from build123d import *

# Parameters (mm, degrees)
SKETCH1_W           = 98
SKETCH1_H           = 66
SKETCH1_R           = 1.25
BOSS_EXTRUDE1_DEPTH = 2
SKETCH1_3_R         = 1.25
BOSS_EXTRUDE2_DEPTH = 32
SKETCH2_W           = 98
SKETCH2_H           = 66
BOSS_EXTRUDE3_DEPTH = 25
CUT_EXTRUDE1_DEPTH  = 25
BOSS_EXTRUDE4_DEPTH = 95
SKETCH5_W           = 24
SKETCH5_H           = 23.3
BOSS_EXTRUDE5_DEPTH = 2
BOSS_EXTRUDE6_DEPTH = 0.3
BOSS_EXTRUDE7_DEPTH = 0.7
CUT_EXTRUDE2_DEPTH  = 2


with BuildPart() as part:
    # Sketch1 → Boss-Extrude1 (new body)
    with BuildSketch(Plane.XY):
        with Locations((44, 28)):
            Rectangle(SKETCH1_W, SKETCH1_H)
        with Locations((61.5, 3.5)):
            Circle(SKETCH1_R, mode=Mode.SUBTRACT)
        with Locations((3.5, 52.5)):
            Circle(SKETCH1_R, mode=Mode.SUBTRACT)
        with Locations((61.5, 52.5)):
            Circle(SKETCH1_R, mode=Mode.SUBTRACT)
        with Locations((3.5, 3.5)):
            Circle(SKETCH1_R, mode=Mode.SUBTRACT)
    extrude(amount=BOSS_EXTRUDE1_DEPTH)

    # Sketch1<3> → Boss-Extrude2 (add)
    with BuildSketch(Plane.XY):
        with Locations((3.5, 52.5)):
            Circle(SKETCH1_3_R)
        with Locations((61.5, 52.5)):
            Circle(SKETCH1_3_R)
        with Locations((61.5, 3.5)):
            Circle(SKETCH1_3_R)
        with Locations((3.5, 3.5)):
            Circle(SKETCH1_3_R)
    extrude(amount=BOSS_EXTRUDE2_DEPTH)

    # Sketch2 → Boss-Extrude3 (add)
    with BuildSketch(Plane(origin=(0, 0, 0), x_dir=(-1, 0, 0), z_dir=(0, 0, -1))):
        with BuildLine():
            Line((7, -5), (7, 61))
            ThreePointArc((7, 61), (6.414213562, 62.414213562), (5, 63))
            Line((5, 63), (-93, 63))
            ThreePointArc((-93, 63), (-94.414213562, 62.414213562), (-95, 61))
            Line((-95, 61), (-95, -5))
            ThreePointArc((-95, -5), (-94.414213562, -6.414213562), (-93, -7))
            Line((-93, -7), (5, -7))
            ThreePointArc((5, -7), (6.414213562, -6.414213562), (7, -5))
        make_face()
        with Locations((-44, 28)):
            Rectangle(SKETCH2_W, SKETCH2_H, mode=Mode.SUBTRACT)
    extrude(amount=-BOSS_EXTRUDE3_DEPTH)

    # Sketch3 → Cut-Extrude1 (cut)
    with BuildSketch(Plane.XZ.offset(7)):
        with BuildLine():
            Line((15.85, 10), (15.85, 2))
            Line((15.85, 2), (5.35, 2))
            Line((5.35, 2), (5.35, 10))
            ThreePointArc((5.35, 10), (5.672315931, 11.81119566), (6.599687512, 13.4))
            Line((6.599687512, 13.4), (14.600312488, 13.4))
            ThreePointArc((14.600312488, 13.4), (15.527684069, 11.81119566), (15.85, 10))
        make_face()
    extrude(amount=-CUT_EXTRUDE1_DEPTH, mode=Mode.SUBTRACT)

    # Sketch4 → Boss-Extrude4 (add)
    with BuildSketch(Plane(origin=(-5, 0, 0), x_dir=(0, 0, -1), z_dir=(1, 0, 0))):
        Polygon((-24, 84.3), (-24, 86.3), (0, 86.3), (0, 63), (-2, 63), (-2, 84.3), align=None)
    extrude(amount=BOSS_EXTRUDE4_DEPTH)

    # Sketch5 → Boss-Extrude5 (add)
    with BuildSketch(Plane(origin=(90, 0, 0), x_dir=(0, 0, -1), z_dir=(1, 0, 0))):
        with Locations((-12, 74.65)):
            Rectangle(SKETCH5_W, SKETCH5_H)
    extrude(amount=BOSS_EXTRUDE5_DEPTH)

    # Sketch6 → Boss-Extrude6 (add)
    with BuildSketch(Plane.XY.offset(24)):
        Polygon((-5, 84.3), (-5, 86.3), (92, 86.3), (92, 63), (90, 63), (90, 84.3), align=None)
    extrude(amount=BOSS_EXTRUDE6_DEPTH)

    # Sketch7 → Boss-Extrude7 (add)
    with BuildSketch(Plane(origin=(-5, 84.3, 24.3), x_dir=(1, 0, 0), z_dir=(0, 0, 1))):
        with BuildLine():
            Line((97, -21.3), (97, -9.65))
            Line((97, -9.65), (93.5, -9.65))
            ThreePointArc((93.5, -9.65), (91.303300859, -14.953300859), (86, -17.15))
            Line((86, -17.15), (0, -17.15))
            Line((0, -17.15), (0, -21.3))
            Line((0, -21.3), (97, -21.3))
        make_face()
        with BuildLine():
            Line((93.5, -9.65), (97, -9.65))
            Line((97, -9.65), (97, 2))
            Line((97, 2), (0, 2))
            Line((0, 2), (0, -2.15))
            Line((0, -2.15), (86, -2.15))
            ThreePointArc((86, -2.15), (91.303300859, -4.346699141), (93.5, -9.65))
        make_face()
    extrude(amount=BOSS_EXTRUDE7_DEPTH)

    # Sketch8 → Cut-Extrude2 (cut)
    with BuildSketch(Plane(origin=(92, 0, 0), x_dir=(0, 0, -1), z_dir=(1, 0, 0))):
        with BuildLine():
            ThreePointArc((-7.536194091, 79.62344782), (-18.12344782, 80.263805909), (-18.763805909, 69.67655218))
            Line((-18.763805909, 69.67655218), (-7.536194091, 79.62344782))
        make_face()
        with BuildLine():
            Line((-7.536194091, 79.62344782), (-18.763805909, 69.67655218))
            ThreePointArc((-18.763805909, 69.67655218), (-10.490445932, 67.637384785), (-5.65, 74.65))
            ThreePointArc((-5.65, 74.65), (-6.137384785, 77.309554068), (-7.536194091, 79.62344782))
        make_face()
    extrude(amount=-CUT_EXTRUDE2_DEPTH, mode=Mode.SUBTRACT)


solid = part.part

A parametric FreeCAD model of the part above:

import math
import FreeCAD as App
import Part
import Sketcher
Q = App.Units.Quantity


def add_polygon(sketch, points):
    """Adds a closed chain of lines whose ends are joined by coincident constraints."""
    first, n = sketch.GeometryCount, len(points)
    for a, b in zip(points, points[1:] + points[:1]):
        sketch.addGeometry(Part.LineSegment(App.Vector(*a, 0), App.Vector(*b, 0)), False)
    for i in range(n):
        sketch.addConstraint(Sketcher.Constraint("Coincident", first + i, 2, first + (i + 1) % n, 1))

doc = App.newDocument("Part")
body = doc.addObject("PartDesign::Body", "Body")

# Sketch on XY plane
sketch1 = doc.addObject("Sketcher::SketchObject", "Sketch")
body.addObject(sketch1)
sketch1.AttachmentSupport = (doc.XY_Plane, [""])
sketch1.MapMode = "FlatFace"
add_polygon(sketch1, [(-5, 61), (-5, -5), (93, -5), (93, 61)])  # lines 0-3
sketch1.addGeometry(Part.Circle(App.Vector(3.5, 3.5, 0), App.Vector(0, 0, 1), 1.25), False)  # 4
sketch1.addGeometry(Part.Circle(App.Vector(61.5, 3.5, 0), App.Vector(0, 0, 1), 1.25), False)  # 5
sketch1.addGeometry(Part.Circle(App.Vector(3.5, 52.5, 0), App.Vector(0, 0, 1), 1.25), False)  # 6
sketch1.addGeometry(Part.Circle(App.Vector(61.5, 52.5, 0), App.Vector(0, 0, 1), 1.25), False)  # 7
sketch1.addConstraint(Sketcher.Constraint("Vertical", 0))
sketch1.addConstraint(Sketcher.Constraint("Horizontal", 1))
sketch1.addConstraint(Sketcher.Constraint("Vertical", 2))
sketch1.addConstraint(Sketcher.Constraint("Horizontal", 3))
sketch1.addConstraint(Sketcher.Constraint("Equal", 4, 5))
sketch1.addConstraint(Sketcher.Constraint("Equal", 5, 6))
sketch1.addConstraint(Sketcher.Constraint("Equal", 6, 7))
sketch1.addConstraint(Sketcher.Constraint("Horizontal", 4, 3, 5, 3))
sketch1.addConstraint(Sketcher.Constraint("Horizontal", 6, 3, 7, 3))
sketch1.addConstraint(Sketcher.Constraint("Vertical", 4, 3, 6, 3))
sketch1.addConstraint(Sketcher.Constraint("Vertical", 5, 3, 7, 3))
sketch1.addConstraint(Sketcher.Constraint("Diameter", 4, Q("2.5 mm")))
sketch1.addConstraint(Sketcher.Constraint("DistanceX", 1, 1, 1, 2, Q("98 mm")))
sketch1.addConstraint(Sketcher.Constraint("DistanceY", 0, 2, 0, 1, Q("66 mm")))
sketch1.addConstraint(Sketcher.Constraint("DistanceX", 0, 2, -1, 1, Q("5 mm")))
sketch1.addConstraint(Sketcher.Constraint("DistanceY", 0, 2, -1, 1, Q("5 mm")))
sketch1.addConstraint(Sketcher.Constraint("DistanceX", 4, 3, 5, 3, Q("58 mm")))
sketch1.addConstraint(Sketcher.Constraint("DistanceY", 4, 3, 6, 3, Q("49 mm")))
sketch1.addConstraint(Sketcher.Constraint("DistanceX", -1, 1, 4, 3, Q("3.5 mm")))
sketch1.addConstraint(Sketcher.Constraint("DistanceY", -1, 1, 4, 3, Q("3.5 mm")))
pad1 = doc.addObject("PartDesign::Pad", "Pad")
body.addObject(pad1)
pad1.Profile = sketch1
pad1.Length = 2

# Sketch on XY plane
sketch2 = doc.addObject("Sketcher::SketchObject", "Sketch001")
body.addObject(sketch2)
sketch2.AttachmentSupport = (doc.XY_Plane, [""])
sketch2.MapMode = "FlatFace"
sketch2.addGeometry(Part.Circle(App.Vector(3.5, 52.5, 0), App.Vector(0, 0, 1), 1.25), False)
sketch2.addGeometry(Part.Circle(App.Vector(61.5, 52.5, 0), App.Vector(0, 0, 1), 1.25), False)
sketch2.addGeometry(Part.Circle(App.Vector(61.5, 3.5, 0), App.Vector(0, 0, 1), 1.25), False)
sketch2.addGeometry(Part.Circle(App.Vector(3.5, 3.5, 0), App.Vector(0, 0, 1), 1.25), False)
sketch2.addConstraint(Sketcher.Constraint("Equal", 0, 1))
sketch2.addConstraint(Sketcher.Constraint("Equal", 1, 2))
sketch2.addConstraint(Sketcher.Constraint("Equal", 2, 3))
sketch2.addConstraint(Sketcher.Constraint("Horizontal", 0, 3, 1, 3))
sketch2.addConstraint(Sketcher.Constraint("Horizontal", 2, 3, 3, 3))
sketch2.addConstraint(Sketcher.Constraint("Vertical", 1, 3, 2, 3))
sketch2.addConstraint(Sketcher.Constraint("Vertical", 0, 3, 3, 3))
sketch2.addConstraint(Sketcher.Constraint("Diameter", 0, Q("2.5 mm")))
sketch2.addConstraint(Sketcher.Constraint("DistanceX", 0, 3, 1, 3, Q("58 mm")))
sketch2.addConstraint(Sketcher.Constraint("DistanceY", 2, 3, 1, 3, Q("49 mm")))
sketch2.addConstraint(Sketcher.Constraint("DistanceX", -1, 1, 0, 3, Q("3.5 mm")))
sketch2.addConstraint(Sketcher.Constraint("DistanceY", -1, 1, 0, 3, Q("52.5 mm")))
pad2 = doc.addObject("PartDesign::Pad", "Pad001")
body.addObject(pad2)
pad2.Profile = sketch2
pad2.Length = 32

# Sketch on XY plane
sketch3 = doc.addObject("Sketcher::SketchObject", "Sketch002")
body.addObject(sketch3)
sketch3.AttachmentSupport = (doc.XY_Plane, [""])
sketch3.MapMode = "FlatFace"
sketch3.addGeometry(Part.LineSegment(App.Vector(-7, -5, 0), App.Vector(-7, 61, 0)), False)  # 0
sketch3.addGeometry(Part.ArcOfCircle(Part.Circle(App.Vector(-5, 61, 0), App.Vector(0, 0, 1), 2), math.radians(90), math.radians(180)), False)  # 1
sketch3.addGeometry(Part.LineSegment(App.Vector(-5, 63, 0), App.Vector(93, 63, 0)), False)  # 2
sketch3.addGeometry(Part.ArcOfCircle(Part.Circle(App.Vector(93, 61, 0), App.Vector(0, 0, 1), 2), math.radians(0), math.radians(90)), False)  # 3
sketch3.addGeometry(Part.LineSegment(App.Vector(95, 61, 0), App.Vector(95, -5, 0)), False)  # 4
sketch3.addGeometry(Part.ArcOfCircle(Part.Circle(App.Vector(93, -5, 0), App.Vector(0, 0, 1), 2), math.radians(-90), math.radians(0)), False)  # 5
sketch3.addGeometry(Part.LineSegment(App.Vector(93, -7, 0), App.Vector(-5, -7, 0)), False)  # 6
sketch3.addGeometry(Part.ArcOfCircle(Part.Circle(App.Vector(-5, -5, 0), App.Vector(0, 0, 1), 2), math.radians(-180), math.radians(-90)), False)  # 7
add_polygon(sketch3, [(-5, -5), (93, -5), (93, 61), (-5, 61)])  # lines 8-11
sketch3.addConstraint(Sketcher.Constraint("Tangent", 0, 2, 1, 2))
sketch3.addConstraint(Sketcher.Constraint("Tangent", 1, 1, 2, 1))
sketch3.addConstraint(Sketcher.Constraint("Tangent", 2, 2, 3, 2))
sketch3.addConstraint(Sketcher.Constraint("Tangent", 3, 1, 4, 1))
sketch3.addConstraint(Sketcher.Constraint("Tangent", 4, 2, 5, 2))
sketch3.addConstraint(Sketcher.Constraint("Tangent", 5, 1, 6, 1))
sketch3.addConstraint(Sketcher.Constraint("Tangent", 6, 2, 7, 2))
sketch3.addConstraint(Sketcher.Constraint("Tangent", 7, 1, 0, 1))
sketch3.addConstraint(Sketcher.Constraint("Vertical", 0))
sketch3.addConstraint(Sketcher.Constraint("Horizontal", 2))
sketch3.addConstraint(Sketcher.Constraint("Vertical", 4))
sketch3.addConstraint(Sketcher.Constraint("Horizontal", 6))
sketch3.addConstraint(Sketcher.Constraint("Horizontal", 8))
sketch3.addConstraint(Sketcher.Constraint("Vertical", 9))
sketch3.addConstraint(Sketcher.Constraint("Horizontal", 10))
sketch3.addConstraint(Sketcher.Constraint("Vertical", 11))
sketch3.addConstraint(Sketcher.Constraint("Coincident", 8, 2, 5, 3))
sketch3.addConstraint(Sketcher.Constraint("Coincident", 9, 2, 3, 3))
sketch3.addConstraint(Sketcher.Constraint("Coincident", 10, 2, 1, 3))
sketch3.addConstraint(Sketcher.Constraint("Equal", 5, 7))
sketch3.addConstraint(Sketcher.Constraint("Radius", 1, Q("2 mm")))
sketch3.addConstraint(Sketcher.Constraint("DistanceX", 2, 1, 2, 2, Q("98 mm")))
sketch3.addConstraint(Sketcher.Constraint("DistanceY", 0, 1, 0, 2, Q("66 mm")))
sketch3.addConstraint(Sketcher.Constraint("DistanceX", 1, 3, -1, 1, Q("5 mm")))
sketch3.addConstraint(Sketcher.Constraint("DistanceY", -1, 1, 1, 3, Q("61 mm")))
pad3 = doc.addObject("PartDesign::Pad", "Pad002")
body.addObject(pad3)
pad3.Profile = sketch3
pad3.Length = 25

# Sketch on XZ plane
sketch4 = doc.addObject("Sketcher::SketchObject", "Sketch003")
body.addObject(sketch4)
sketch4.AttachmentSupport = (doc.XZ_Plane, [""])
sketch4.MapMode = "FlatFace"
sketch4.AttachmentOffset = App.Placement(App.Vector(0, 0, 7), App.Rotation())
sketch4.addGeometry(Part.LineSegment(App.Vector(15.85, 2, 0), App.Vector(15.85, 10, 0)), False)
sketch4.addGeometry(Part.ArcOfCircle(Part.Circle(App.Vector(10.6, 10, 0), App.Vector(0, 0, 1), 5.25), math.radians(0), math.radians(40.362328)), False)
sketch4.addGeometry(Part.LineSegment(App.Vector(14.600312, 13.4, 0), App.Vector(6.599688, 13.4, 0)), False)
sketch4.addGeometry(Part.ArcOfCircle(Part.Circle(App.Vector(10.6, 10, 0), App.Vector(0, 0, 1), 5.25), math.radians(139.637672), math.radians(180)), False)
sketch4.addGeometry(Part.LineSegment(App.Vector(5.35, 10, 0), App.Vector(5.35, 2, 0)), False)
sketch4.addGeometry(Part.LineSegment(App.Vector(5.35, 2, 0), App.Vector(15.85, 2, 0)), False)
sketch4.addConstraint(Sketcher.Constraint("Tangent", 0, 2, 1, 1))
sketch4.addConstraint(Sketcher.Constraint("Coincident", 1, 2, 2, 1))
sketch4.addConstraint(Sketcher.Constraint("Coincident", 2, 2, 3, 1))
sketch4.addConstraint(Sketcher.Constraint("Tangent", 3, 2, 4, 1))
sketch4.addConstraint(Sketcher.Constraint("Coincident", 4, 2, 5, 1))
sketch4.addConstraint(Sketcher.Constraint("Coincident", 5, 2, 0, 1))
sketch4.addConstraint(Sketcher.Constraint("Vertical", 0))
sketch4.addConstraint(Sketcher.Constraint("Horizontal", 2))
sketch4.addConstraint(Sketcher.Constraint("Vertical", 4))
sketch4.addConstraint(Sketcher.Constraint("Horizontal", 5))
sketch4.addConstraint(Sketcher.Constraint("Coincident", 3, 3, 1, 3))
sketch4.addConstraint(Sketcher.Constraint("Equal", 1, 3))
sketch4.addConstraint(Sketcher.Constraint("DistanceY", 0, 1, 0, 2, Q("8 mm")))
sketch4.addConstraint(Sketcher.Constraint("Radius", 1, Q("5.25 mm")))
sketch4.addConstraint(Sketcher.Constraint("DistanceY", -1, 1, 1, 3, Q("10 mm")))
sketch4.addConstraint(Sketcher.Constraint("DistanceX", -1, 1, 1, 3, Q("10.6 mm")))
sketch4.addConstraint(Sketcher.Constraint("DistanceY", -1, 1, 1, 2, Q("13.4 mm")))
pocket1 = doc.addObject("PartDesign::Pocket", "Pocket")
body.addObject(pocket1)
pocket1.Profile = sketch4
pocket1.Length = 25

# Sketch on YZ plane
sketch5 = doc.addObject("Sketcher::SketchObject", "Sketch004")
body.addObject(sketch5)
sketch5.AttachmentSupport = (doc.YZ_Plane, [""])
sketch5.MapMode = "FlatFace"
sketch5.AttachmentOffset = App.Placement(App.Vector(0, 0, -5), App.Rotation())
add_polygon(sketch5, [(86.3, 24), (84.3, 24), (84.3, 2), (63, 2), (63, 0), (86.3, 0)])  # lines 0-5
sketch5.addConstraint(Sketcher.Constraint("Horizontal", 0))
sketch5.addConstraint(Sketcher.Constraint("Vertical", 1))
sketch5.addConstraint(Sketcher.Constraint("Horizontal", 2))
sketch5.addConstraint(Sketcher.Constraint("Vertical", 3))
sketch5.addConstraint(Sketcher.Constraint("Horizontal", 4))
sketch5.addConstraint(Sketcher.Constraint("Vertical", 5))
sketch5.addConstraint(Sketcher.Constraint("PointOnObject", 3, 2, -1))
sketch5.addConstraint(Sketcher.Constraint("Equal", 0, 3))
sketch5.addConstraint(Sketcher.Constraint("DistanceX", 0, 2, 0, 1, Q("2 mm")))
sketch5.addConstraint(Sketcher.Constraint("DistanceY", 1, 2, 1, 1, Q("22 mm")))
sketch5.addConstraint(Sketcher.Constraint("DistanceX", 2, 2, 2, 1, Q("21.3 mm")))
sketch5.addConstraint(Sketcher.Constraint("DistanceX", -1, 1, 2, 2, Q("63 mm")))
pad4 = doc.addObject("PartDesign::Pad", "Pad003")
body.addObject(pad4)
pad4.Profile = sketch5
pad4.Length = 95

# Sketch on YZ plane
sketch6 = doc.addObject("Sketcher::SketchObject", "Sketch005")
body.addObject(sketch6)
sketch6.AttachmentSupport = (doc.YZ_Plane, [""])
sketch6.MapMode = "FlatFace"
sketch6.AttachmentOffset = App.Placement(App.Vector(0, 0, 90), App.Rotation())
add_polygon(sketch6, [(86.3, 24), (63, 24), (63, 0), (86.3, 0)])  # lines 0-3
sketch6.addConstraint(Sketcher.Constraint("Horizontal", 0))
sketch6.addConstraint(Sketcher.Constraint("Vertical", 1))
sketch6.addConstraint(Sketcher.Constraint("Horizontal", 2))
sketch6.addConstraint(Sketcher.Constraint("Vertical", 3))
sketch6.addConstraint(Sketcher.Constraint("PointOnObject", 1, 2, -1))
sketch6.addConstraint(Sketcher.Constraint("DistanceY", 1, 2, 1, 1, Q("24 mm")))
sketch6.addConstraint(Sketcher.Constraint("DistanceX", 0, 2, 0, 1, Q("23.3 mm")))
sketch6.addConstraint(Sketcher.Constraint("DistanceX", -1, 1, 0, 2, Q("63 mm")))
pad5 = doc.addObject("PartDesign::Pad", "Pad004")
body.addObject(pad5)
pad5.Profile = sketch6
pad5.Length = 2

# Sketch on XY plane
sketch7 = doc.addObject("Sketcher::SketchObject", "Sketch006")
body.addObject(sketch7)
sketch7.AttachmentSupport = (doc.XY_Plane, [""])
sketch7.MapMode = "FlatFace"
sketch7.AttachmentOffset = App.Placement(App.Vector(0, 0, 24), App.Rotation())
add_polygon(sketch7, [(-5, 86.3), (-5, 84.3), (90, 84.3), (90, 63), (92, 63), (92, 86.3)])  # lines 0-5
sketch7.addConstraint(Sketcher.Constraint("Vertical", 0))
sketch7.addConstraint(Sketcher.Constraint("Horizontal", 1))
sketch7.addConstraint(Sketcher.Constraint("Vertical", 2))
sketch7.addConstraint(Sketcher.Constraint("Horizontal", 3))
sketch7.addConstraint(Sketcher.Constraint("Vertical", 4))
sketch7.addConstraint(Sketcher.Constraint("Horizontal", 5))
sketch7.addConstraint(Sketcher.Constraint("Equal", 3, 0))
sketch7.addConstraint(Sketcher.Constraint("DistanceX", 1, 1, 1, 2, Q("95 mm")))
sketch7.addConstraint(Sketcher.Constraint("DistanceX", 3, 1, 3, 2, Q("2 mm")))
sketch7.addConstraint(Sketcher.Constraint("DistanceY", 2, 2, 2, 1, Q("21.3 mm")))
sketch7.addConstraint(Sketcher.Constraint("DistanceX", 0, 2, -1, 1, Q("5 mm")))
sketch7.addConstraint(Sketcher.Constraint("DistanceY", -1, 1, 2, 2, Q("63 mm")))
pad6 = doc.addObject("PartDesign::Pad", "Pad005")
body.addObject(pad6)
pad6.Profile = sketch7
pad6.Length = 0.3

# Sketch on XY plane
sketch8 = doc.addObject("Sketcher::SketchObject", "Sketch007")
body.addObject(sketch8)
sketch8.AttachmentSupport = (doc.XY_Plane, [""])
sketch8.MapMode = "FlatFace"
sketch8.AttachmentOffset = App.Placement(App.Vector(0, 0, 24.3), App.Rotation())
sketch8.addGeometry(Part.LineSegment(App.Vector(92, 63, 0), App.Vector(92, 86.3, 0)), False)
sketch8.addGeometry(Part.LineSegment(App.Vector(92, 86.3, 0), App.Vector(-5, 86.3, 0)), False)
sketch8.addGeometry(Part.LineSegment(App.Vector(-5, 86.3, 0), App.Vector(-5, 82.15, 0)), False)
sketch8.addGeometry(Part.LineSegment(App.Vector(-5, 82.15, 0), App.Vector(81, 82.15, 0)), False)
sketch8.addGeometry(Part.ArcOfCircle(Part.Circle(App.Vector(81, 74.65, 0), App.Vector(0, 0, 1), 7.5), math.radians(0), math.radians(90)), False)
sketch8.addGeometry(Part.ArcOfCircle(Part.Circle(App.Vector(81, 74.65, 0), App.Vector(0, 0, 1), 7.5), math.radians(-90), math.radians(0)), False)
sketch8.addGeometry(Part.LineSegment(App.Vector(81, 67.15, 0), App.Vector(-5, 67.15, 0)), False)
sketch8.addGeometry(Part.LineSegment(App.Vector(-5, 67.15, 0), App.Vector(-5, 63, 0)), False)
sketch8.addGeometry(Part.LineSegment(App.Vector(-5, 63, 0), App.Vector(92, 63, 0)), False)
sketch8.addConstraint(Sketcher.Constraint("Coincident", 0, 2, 1, 1))
sketch8.addConstraint(Sketcher.Constraint("Coincident", 1, 2, 2, 1))
sketch8.addConstraint(Sketcher.Constraint("Coincident", 2, 2, 3, 1))
sketch8.addConstraint(Sketcher.Constraint("Tangent", 3, 2, 4, 2))
sketch8.addConstraint(Sketcher.Constraint("Tangent", 4, 1, 5, 2))
sketch8.addConstraint(Sketcher.Constraint("Tangent", 5, 1, 6, 1))
sketch8.addConstraint(Sketcher.Constraint("Coincident", 6, 2, 7, 1))
sketch8.addConstraint(Sketcher.Constraint("Coincident", 7, 2, 8, 1))
sketch8.addConstraint(Sketcher.Constraint("Coincident", 8, 2, 0, 1))
sketch8.addConstraint(Sketcher.Constraint("Vertical", 0))
sketch8.addConstraint(Sketcher.Constraint("Horizontal", 1))
sketch8.addConstraint(Sketcher.Constraint("Vertical", 2))
sketch8.addConstraint(Sketcher.Constraint("Horizontal", 3))
sketch8.addConstraint(Sketcher.Constraint("Horizontal", 6))
sketch8.addConstraint(Sketcher.Constraint("Vertical", 7))
sketch8.addConstraint(Sketcher.Constraint("Horizontal", 8))
sketch8.addConstraint(Sketcher.Constraint("Equal", 4, 5))
sketch8.addConstraint(Sketcher.Constraint("Horizontal", 5, 3, 4, 1))
sketch8.addConstraint(Sketcher.Constraint("Vertical", 2, 2, 6, 2))
sketch8.addConstraint(Sketcher.Constraint("Equal", 2, 7))
sketch8.addConstraint(Sketcher.Constraint("Radius", 4, Q("7.5 mm")))
sketch8.addConstraint(Sketcher.Constraint("DistanceX", 1, 2, 1, 1, Q("97 mm")))
sketch8.addConstraint(Sketcher.Constraint("DistanceX", 3, 1, 3, 2, Q("86 mm")))
sketch8.addConstraint(Sketcher.Constraint("DistanceY", 0, 1, 0, 2, Q("23.3 mm")))
sketch8.addConstraint(Sketcher.Constraint("DistanceX", -1, 1, 4, 3, Q("81 mm")))
sketch8.addConstraint(Sketcher.Constraint("DistanceY", -1, 1, 7, 2, Q("63 mm")))
pad7 = doc.addObject("PartDesign::Pad", "Pad006")
body.addObject(pad7)
pad7.Profile = sketch8
pad7.Length = 0.7

# Sketch on YZ plane
sketch9 = doc.addObject("Sketcher::SketchObject", "Sketch008")
body.addObject(sketch9)
sketch9.AttachmentSupport = (doc.YZ_Plane, [""])
sketch9.MapMode = "FlatFace"
sketch9.AttachmentOffset = App.Placement(App.Vector(0, 0, 92), App.Rotation())
sketch9.addGeometry(Part.ArcOfCircle(Part.Circle(App.Vector(74.65, 13.15, 0), App.Vector(0, 0, 1), 7.5), math.radians(-48.461254), math.radians(131.538746)), False)
sketch9.addGeometry(Part.ArcOfCircle(Part.Circle(App.Vector(74.65, 13.15, 0), App.Vector(0, 0, 1), 7.5), math.radians(131.538746), math.radians(270)), False)
sketch9.addGeometry(Part.ArcOfCircle(Part.Circle(App.Vector(74.65, 13.15, 0), App.Vector(0, 0, 1), 7.5), math.radians(-90), math.radians(-48.461254)), False)
sketch9.addConstraint(Sketcher.Constraint("Tangent", 0, 2, 1, 1))
sketch9.addConstraint(Sketcher.Constraint("Tangent", 1, 2, 2, 1))
sketch9.addConstraint(Sketcher.Constraint("Tangent", 2, 2, 0, 1))
sketch9.addConstraint(Sketcher.Constraint("Vertical", 2, 3, 1, 2))
sketch9.addConstraint(Sketcher.Constraint("Radius", 0, Q("7.5 mm")))
sketch9.addConstraint(Sketcher.Constraint("DistanceX", -1, 1, 0, 3, Q("74.65 mm")))
sketch9.addConstraint(Sketcher.Constraint("DistanceY", -1, 1, 0, 3, Q("13.15 mm")))
sketch9.addConstraint(Sketcher.Constraint("DistanceY", 2, 2, 0, 2, Q("11.227612 mm")))
sketch9.addConstraint(Sketcher.Constraint("DistanceX", -1, 1, 0, 2, Q("69.676552 mm")))
pocket2 = doc.addObject("PartDesign::Pocket", "Pocket001")
body.addObject(pocket2)
pocket2.Profile = sketch9
pocket2.Length = 2

doc.recompute()
